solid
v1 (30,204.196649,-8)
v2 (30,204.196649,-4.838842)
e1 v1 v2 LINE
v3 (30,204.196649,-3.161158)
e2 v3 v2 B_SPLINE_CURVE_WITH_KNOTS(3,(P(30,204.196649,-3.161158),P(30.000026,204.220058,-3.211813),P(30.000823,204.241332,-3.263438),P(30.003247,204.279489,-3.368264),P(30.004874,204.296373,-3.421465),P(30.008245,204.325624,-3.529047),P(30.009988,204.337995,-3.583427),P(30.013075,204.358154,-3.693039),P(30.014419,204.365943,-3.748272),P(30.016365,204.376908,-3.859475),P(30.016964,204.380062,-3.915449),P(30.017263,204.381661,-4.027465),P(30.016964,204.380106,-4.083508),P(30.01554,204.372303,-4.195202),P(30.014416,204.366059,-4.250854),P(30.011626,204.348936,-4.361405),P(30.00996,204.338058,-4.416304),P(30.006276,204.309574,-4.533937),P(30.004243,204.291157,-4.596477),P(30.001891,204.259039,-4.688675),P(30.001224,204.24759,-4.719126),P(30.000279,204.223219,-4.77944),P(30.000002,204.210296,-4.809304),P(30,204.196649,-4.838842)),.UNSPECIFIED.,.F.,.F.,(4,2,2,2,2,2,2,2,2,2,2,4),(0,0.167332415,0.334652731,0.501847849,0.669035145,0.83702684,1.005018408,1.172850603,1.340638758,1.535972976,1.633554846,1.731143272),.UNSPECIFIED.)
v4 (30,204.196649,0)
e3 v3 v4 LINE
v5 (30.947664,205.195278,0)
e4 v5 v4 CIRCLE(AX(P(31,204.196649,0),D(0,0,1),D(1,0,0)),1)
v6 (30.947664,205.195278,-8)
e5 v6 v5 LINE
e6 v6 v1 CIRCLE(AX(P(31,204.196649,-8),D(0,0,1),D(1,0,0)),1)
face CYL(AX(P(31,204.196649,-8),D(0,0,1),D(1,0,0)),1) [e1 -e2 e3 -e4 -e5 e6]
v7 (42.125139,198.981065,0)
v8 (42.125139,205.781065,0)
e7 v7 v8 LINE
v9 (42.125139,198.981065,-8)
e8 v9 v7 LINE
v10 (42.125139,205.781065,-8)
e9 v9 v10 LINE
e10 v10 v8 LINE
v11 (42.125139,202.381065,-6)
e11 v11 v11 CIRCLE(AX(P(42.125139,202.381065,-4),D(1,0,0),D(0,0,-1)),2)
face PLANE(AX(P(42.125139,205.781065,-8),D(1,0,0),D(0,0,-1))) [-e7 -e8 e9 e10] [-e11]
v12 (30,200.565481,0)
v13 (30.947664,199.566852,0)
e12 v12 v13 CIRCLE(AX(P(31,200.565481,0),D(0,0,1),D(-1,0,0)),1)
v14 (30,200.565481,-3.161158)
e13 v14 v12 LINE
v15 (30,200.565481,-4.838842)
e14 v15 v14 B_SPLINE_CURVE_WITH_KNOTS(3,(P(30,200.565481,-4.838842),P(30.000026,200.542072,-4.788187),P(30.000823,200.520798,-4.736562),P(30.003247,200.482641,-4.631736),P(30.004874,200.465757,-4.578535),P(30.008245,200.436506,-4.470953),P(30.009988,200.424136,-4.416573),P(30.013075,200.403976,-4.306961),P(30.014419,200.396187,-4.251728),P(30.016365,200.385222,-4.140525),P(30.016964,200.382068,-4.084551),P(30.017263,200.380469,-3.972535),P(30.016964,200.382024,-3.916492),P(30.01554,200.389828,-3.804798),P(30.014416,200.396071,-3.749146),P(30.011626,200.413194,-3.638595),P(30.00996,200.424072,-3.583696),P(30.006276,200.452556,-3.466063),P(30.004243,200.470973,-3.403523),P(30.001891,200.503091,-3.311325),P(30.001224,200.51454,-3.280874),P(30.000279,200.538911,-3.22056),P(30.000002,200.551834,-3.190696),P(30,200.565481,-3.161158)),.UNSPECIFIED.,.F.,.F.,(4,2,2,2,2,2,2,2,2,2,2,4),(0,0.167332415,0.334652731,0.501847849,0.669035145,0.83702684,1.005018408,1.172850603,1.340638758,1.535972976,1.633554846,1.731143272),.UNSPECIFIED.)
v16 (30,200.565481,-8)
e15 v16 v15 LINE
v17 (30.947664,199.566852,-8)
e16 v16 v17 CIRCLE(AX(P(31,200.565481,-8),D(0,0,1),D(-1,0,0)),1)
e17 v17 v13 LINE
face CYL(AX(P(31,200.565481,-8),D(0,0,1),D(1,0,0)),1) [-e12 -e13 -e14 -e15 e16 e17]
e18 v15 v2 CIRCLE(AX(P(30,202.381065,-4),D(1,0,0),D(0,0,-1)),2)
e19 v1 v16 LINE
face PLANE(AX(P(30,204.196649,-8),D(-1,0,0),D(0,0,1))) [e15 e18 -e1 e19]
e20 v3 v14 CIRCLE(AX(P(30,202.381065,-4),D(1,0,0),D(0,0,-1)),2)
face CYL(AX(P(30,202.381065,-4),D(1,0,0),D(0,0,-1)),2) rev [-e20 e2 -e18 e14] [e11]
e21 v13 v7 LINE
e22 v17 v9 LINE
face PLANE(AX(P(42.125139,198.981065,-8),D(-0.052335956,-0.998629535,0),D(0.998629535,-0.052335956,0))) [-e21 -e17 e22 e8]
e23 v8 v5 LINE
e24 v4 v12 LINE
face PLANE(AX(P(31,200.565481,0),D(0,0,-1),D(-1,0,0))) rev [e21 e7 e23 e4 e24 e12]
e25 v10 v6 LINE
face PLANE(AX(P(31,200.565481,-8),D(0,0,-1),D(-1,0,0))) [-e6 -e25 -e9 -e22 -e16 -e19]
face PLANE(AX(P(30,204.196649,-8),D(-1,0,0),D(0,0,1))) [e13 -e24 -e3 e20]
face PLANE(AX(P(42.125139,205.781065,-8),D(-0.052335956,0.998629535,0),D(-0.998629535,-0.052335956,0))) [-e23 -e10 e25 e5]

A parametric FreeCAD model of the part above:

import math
import FreeCAD as App
import Part
import Sketcher
from FreeCAD import Vector
Q = App.Units.Quantity

doc = App.newDocument("Part")
body = doc.addObject("PartDesign::Body", "Body")

# Sketch on XY plane
sketch1 = body.newObject("Sketcher::SketchObject", "Sketch")
sketch1.AttachmentSupport = (doc.getObject("XY_Plane"), [""])
sketch1.MapMode = "FlatFace"
sketch1.addGeometry(Part.LineSegment(Vector(42.1, 205.8, 0), Vector(30.9, 205.2, 0)), False)
sketch1.addGeometry(Part.ArcOfCircle(Part.Circle(Vector(31, 204.2, 0), Vector(0, 0, 1), 1), math.radians(93), math.radians(180)), False)
sketch1.addGeometry(Part.LineSegment(Vector(30, 204.2, 0), Vector(30, 200.6, 0)), False)
sketch1.addGeometry(Part.ArcOfCircle(Part.Circle(Vector(31, 200.6, 0), Vector(0, 0, 1), 1), math.radians(180), math.radians(267)), False)
sketch1.addGeometry(Part.LineSegment(Vector(30.9, 199.6, 0), Vector(42.1, 199, 0)), False)
sketch1.addGeometry(Part.LineSegment(Vector(42.1, 199, 0), Vector(42.1, 205.8, 0)), False)
sketch1.addConstraint(Sketcher.Constraint("Tangent", 0, 2, 1, 1))
sketch1.addConstraint(Sketcher.Constraint("Tangent", 1, 2, 2, 1))
sketch1.addConstraint(Sketcher.Constraint("Tangent", 2, 2, 3, 1))
sketch1.addConstraint(Sketcher.Constraint("Tangent", 3, 2, 4, 1))
sketch1.addConstraint(Sketcher.Constraint("Coincident", 4, 2, 5, 1))
sketch1.addConstraint(Sketcher.Constraint("Coincident", 5, 2, 0, 1))
sketch1.addConstraint(Sketcher.Constraint("Vertical", 2))
sketch1.addConstraint(Sketcher.Constraint("Vertical", 5))
sketch1.addConstraint(Sketcher.Constraint("Equal", 1, 3))
sketch1.addConstraint(Sketcher.Constraint("Vertical", 0, 2, 3, 2))
sketch1.addConstraint(Sketcher.Constraint("Radius", 1, 1.0))
sketch1.addConstraint(Sketcher.Constraint("Angle", 0, Q("-177 deg")))
sketch1.addConstraint(Sketcher.Constraint("DistanceY", 5, 1, 5, 2, 6.8))
sketch1.addConstraint(Sketcher.Constraint("DistanceX", -1, 1, 1, 3, 31.0))
sketch1.addConstraint(Sketcher.Constraint("DistanceY", 2, 2, 2, 1, 3.631168))
sketch1.addConstraint(Sketcher.Constraint("DistanceY", -1, 1, 1, 3, 204.196649))
pad1 = body.newObject("PartDesign::Pad", "Pad")
pad1.Profile = sketch1
pad1.Length = 8
pad1.Reversed = True

# Sketch on YZ plane
sketch2 = body.newObject("Sketcher::SketchObject", "Sketch001")
sketch2.AttachmentSupport = (doc.getObject("YZ_Plane"), [""])
sketch2.MapMode = "FlatFace"
sketch2.AttachmentOffset = App.Placement(Vector(0, 0, 42.125139), App.Rotation())
sketch2.addGeometry(Part.Circle(Vector(202.4, -4, 0), Vector(0, 0, 1), 2), False)
sketch2.addConstraint(Sketcher.Constraint("Diameter", 0, 4.0))
sketch2.addConstraint(Sketcher.Constraint("DistanceY", 0, 3, -1, 1, 4.0))
sketch2.addConstraint(Sketcher.Constraint("DistanceX", -1, 1, 0, 3, 202.381065))
pocket1 = body.newObject("PartDesign::Pocket", "Pocket")
pocket1.Profile = sketch2
pocket1.Type = "ThroughAll"

doc.recompute()
